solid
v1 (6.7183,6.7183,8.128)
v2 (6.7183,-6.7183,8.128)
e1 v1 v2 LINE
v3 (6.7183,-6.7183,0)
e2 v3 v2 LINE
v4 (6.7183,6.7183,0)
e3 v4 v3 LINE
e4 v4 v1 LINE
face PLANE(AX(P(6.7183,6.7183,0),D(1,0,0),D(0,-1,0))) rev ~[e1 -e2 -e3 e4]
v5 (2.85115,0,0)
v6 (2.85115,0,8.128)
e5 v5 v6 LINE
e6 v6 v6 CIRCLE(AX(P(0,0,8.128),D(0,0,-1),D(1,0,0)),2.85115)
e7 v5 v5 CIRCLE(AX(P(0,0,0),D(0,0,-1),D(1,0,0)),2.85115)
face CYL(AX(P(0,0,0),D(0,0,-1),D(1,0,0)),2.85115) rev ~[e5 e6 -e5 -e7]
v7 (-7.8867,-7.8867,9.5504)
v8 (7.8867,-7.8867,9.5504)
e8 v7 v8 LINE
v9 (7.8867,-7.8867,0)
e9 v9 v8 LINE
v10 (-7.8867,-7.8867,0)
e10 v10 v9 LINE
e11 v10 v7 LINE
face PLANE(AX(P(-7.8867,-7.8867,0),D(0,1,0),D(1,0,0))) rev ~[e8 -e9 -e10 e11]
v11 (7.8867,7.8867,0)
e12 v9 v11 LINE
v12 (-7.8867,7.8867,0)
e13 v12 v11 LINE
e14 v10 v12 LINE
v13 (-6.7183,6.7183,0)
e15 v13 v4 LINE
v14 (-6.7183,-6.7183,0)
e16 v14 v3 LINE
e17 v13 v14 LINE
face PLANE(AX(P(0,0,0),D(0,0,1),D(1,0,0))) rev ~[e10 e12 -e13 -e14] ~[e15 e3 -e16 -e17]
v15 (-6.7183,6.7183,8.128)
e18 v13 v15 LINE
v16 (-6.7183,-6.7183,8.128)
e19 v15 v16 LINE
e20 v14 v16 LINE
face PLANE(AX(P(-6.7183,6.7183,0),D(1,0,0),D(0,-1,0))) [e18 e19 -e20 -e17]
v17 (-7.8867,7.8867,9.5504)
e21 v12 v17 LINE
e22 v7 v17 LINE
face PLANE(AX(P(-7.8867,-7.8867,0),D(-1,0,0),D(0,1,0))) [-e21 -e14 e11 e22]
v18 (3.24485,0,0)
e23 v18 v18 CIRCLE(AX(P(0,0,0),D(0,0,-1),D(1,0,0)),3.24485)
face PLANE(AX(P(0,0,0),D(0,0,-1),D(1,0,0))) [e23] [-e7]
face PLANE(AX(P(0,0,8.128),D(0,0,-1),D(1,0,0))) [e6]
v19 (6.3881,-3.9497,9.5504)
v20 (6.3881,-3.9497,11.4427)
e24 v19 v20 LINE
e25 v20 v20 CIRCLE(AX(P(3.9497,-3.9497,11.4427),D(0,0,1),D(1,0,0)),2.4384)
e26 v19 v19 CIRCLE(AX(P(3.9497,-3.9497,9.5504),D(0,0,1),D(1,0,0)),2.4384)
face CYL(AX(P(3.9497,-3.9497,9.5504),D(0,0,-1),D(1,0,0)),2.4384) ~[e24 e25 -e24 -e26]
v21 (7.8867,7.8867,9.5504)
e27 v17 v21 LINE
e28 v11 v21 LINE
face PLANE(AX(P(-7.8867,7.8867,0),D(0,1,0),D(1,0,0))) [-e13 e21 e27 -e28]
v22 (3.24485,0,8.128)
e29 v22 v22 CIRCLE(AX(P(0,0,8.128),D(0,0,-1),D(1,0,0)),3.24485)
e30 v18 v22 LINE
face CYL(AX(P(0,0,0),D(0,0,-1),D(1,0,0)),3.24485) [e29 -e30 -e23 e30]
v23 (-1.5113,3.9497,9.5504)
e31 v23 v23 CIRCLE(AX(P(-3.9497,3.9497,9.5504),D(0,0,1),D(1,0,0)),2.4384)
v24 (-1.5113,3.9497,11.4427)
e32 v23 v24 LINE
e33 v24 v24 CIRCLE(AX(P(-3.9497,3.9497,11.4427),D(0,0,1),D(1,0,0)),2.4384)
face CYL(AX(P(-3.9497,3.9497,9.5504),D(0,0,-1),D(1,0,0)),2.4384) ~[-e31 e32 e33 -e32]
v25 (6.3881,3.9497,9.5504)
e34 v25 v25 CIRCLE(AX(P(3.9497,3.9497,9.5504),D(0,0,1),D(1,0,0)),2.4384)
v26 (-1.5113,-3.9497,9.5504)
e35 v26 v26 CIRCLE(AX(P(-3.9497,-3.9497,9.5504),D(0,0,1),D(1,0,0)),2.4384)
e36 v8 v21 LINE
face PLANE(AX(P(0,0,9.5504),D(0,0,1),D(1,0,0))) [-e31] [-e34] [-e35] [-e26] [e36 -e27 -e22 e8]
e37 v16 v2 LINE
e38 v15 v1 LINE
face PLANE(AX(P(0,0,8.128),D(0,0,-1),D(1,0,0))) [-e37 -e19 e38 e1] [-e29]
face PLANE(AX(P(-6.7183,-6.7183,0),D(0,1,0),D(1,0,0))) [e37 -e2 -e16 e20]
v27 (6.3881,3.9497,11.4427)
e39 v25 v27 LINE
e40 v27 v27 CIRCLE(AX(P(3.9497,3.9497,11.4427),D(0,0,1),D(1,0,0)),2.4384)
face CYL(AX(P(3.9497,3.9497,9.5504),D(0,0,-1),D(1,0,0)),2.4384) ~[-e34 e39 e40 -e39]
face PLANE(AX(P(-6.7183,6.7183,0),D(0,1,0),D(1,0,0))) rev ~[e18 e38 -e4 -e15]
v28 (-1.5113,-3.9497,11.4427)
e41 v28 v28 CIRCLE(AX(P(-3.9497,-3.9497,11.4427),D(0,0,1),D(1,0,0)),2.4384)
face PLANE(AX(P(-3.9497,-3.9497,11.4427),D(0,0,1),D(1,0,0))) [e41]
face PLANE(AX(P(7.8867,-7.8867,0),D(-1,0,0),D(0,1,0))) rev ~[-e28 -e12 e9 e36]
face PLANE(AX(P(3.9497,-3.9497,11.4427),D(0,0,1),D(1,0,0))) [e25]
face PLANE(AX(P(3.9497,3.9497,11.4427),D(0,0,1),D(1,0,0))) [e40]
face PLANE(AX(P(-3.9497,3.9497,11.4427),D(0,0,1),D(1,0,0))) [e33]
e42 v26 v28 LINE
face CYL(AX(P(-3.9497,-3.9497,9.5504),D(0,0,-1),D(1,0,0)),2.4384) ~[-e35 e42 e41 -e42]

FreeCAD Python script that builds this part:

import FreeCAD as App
import Part
import Sketcher
from FreeCAD import Vector
Q = App.Units.Quantity

doc = App.newDocument("Part")
body = doc.addObject("PartDesign::Body", "Body")

# Sketch on XY plane
sketch1 = body.newObject("Sketcher::SketchObject", "Sketch")
sketch1.AttachmentSupport = (doc.getObject("XY_Plane"), [""])
sketch1.MapMode = "FlatFace"
sketch1.addGeometry(Part.LineSegment(Vector(-8, 8, 0), Vector(-8, -8, 0)), False)
sketch1.addGeometry(Part.LineSegment(Vector(-8, -8, 0), Vector(8, -8, 0)), False)
sketch1.addGeometry(Part.LineSegment(Vector(8, -8, 0), Vector(8, 8, 0)), False)
sketch1.addGeometry(Part.LineSegment(Vector(8, 8, 0), Vector(-8, 8, 0)), False)
sketch1.addConstraint(Sketcher.Constraint("Coincident", 0, 2, 1, 1))
sketch1.addConstraint(Sketcher.Constraint("Coincident", 1, 2, 2, 1))
sketch1.addConstraint(Sketcher.Constraint("Coincident", 2, 2, 3, 1))
sketch1.addConstraint(Sketcher.Constraint("Coincident", 3, 2, 0, 1))
sketch1.addConstraint(Sketcher.Constraint("Vertical", 0))
sketch1.addConstraint(Sketcher.Constraint("Horizontal", 1))
sketch1.addConstraint(Sketcher.Constraint("Vertical", 2))
sketch1.addConstraint(Sketcher.Constraint("Horizontal", 3))
sketch1.addConstraint(Sketcher.Constraint("Symmetric", 0, 2, 2, 2, -1, 1))
sketch1.addConstraint(Sketcher.Constraint("Equal", 3, 0))
sketch1.addConstraint(Sketcher.Constraint("DistanceX", 1, 1, 1, 2, Q("0.621 in")))
pad1 = body.newObject("PartDesign::Pad", "Pad")
pad1.Profile = sketch1
pad1.Length = Q("0.376 in")

# Sketch on XY plane
sketch2 = body.newObject("Sketcher::SketchObject", "Sketch001")
sketch2.AttachmentSupport = (doc.getObject("XY_Plane"), [""])
sketch2.MapMode = "FlatFace"
sketch2.AttachmentOffset = App.Placement(Vector(0, 0, 0.376 * 25.4), App.Rotation())
sketch2.addGeometry(Part.Circle(Vector(3.9, 3.9, 0), Vector(0, 0, 1), 2.4), False)
sketch2.addGeometry(Part.Circle(Vector(-3.9, -3.9, 0), Vector(0, 0, 1), 2.4), False)
sketch2.addGeometry(Part.Circle(Vector(3.9, -3.9, 0), Vector(0, 0, 1), 2.4), False)
sketch2.addGeometry(Part.Circle(Vector(-3.9, 3.9, 0), Vector(0, 0, 1), 2.4), False)
sketch2.addConstraint(Sketcher.Constraint("Equal", 0, 1))
sketch2.addConstraint(Sketcher.Constraint("Equal", 1, 2))
sketch2.addConstraint(Sketcher.Constraint("Equal", 2, 3))
sketch2.addConstraint(Sketcher.Constraint("Symmetric", 0, 3, 1, 3, -1, 1))
sketch2.addConstraint(Sketcher.Constraint("Symmetric", 2, 3, 3, 3, -1, 1))
sketch2.addConstraint(Sketcher.Constraint("Symmetric", 1, 3, 2, 3, -2))
sketch2.addConstraint(Sketcher.Constraint("Diameter", 0, Q("0.192 in")))
sketch2.addConstraint(Sketcher.Constraint("DistanceX", 1, 3, 0, 3, Q("0.311 in")))
sketch2.addConstraint(Sketcher.Constraint("DistanceY", 1, 3, 0, 3, Q("0.311 in")))
pad2 = body.newObject("PartDesign::Pad", "Pad001")
pad2.Profile = sketch2
pad2.Length = Q("0.0745 in")

# Sketch on XY plane
sketch3 = body.newObject("Sketcher::SketchObject", "Sketch002")
sketch3.AttachmentSupport = (doc.getObject("XY_Plane"), [""])
sketch3.MapMode = "FlatFace"
sketch3.addGeometry(Part.LineSegment(Vector(-7, -7, 0), Vector(-7, 7, 0)), False)
sketch3.addGeometry(Part.LineSegment(Vector(-7, 7, 0), Vector(7, 7, 0)), False)
sketch3.addGeometry(Part.LineSegment(Vector(7, 7, 0), Vector(7, -7, 0)), False)
sketch3.addGeometry(Part.LineSegment(Vector(7, -7, 0), Vector(-7, -7, 0)), False)
sketch3.addConstraint(Sketcher.Constraint("Coincident", 0, 2, 1, 1))
sketch3.addConstraint(Sketcher.Constraint("Coincident", 1, 2, 2, 1))
sketch3.addConstraint(Sketcher.Constraint("Coincident", 2, 2, 3, 1))
sketch3.addConstraint(Sketcher.Constraint("Coincident", 3, 2, 0, 1))
sketch3.addConstraint(Sketcher.Constraint("Vertical", 0))
sketch3.addConstraint(Sketcher.Constraint("Horizontal", 1))
sketch3.addConstraint(Sketcher.Constraint("Vertical", 2))
sketch3.addConstraint(Sketcher.Constraint("Horizontal", 3))
sketch3.addConstraint(Sketcher.Constraint("Symmetric", 0, 2, 2, 2, -1, 1))
sketch3.addConstraint(Sketcher.Constraint("Equal", 3, 0))
sketch3.addConstraint(Sketcher.Constraint("DistanceX", 1, 1, 1, 2, Q("0.529 in")))
pocket1 = body.newObject("PartDesign::Pocket", "Pocket")
pocket1.Profile = sketch3
pocket1.Length = Q("0.32 in")
pocket1.Reversed = True

# Sketch on XY plane
sketch4 = body.newObject("Sketcher::SketchObject", "Sketch003")
sketch4.AttachmentSupport = (doc.getObject("XY_Plane"), [""])
sketch4.MapMode = "FlatFace"
sketch4.addGeometry(Part.Circle(Vector(0, 0, 0), Vector(0, 0, 1), 3.2), False)
sketch4.addGeometry(Part.Circle(Vector(0, 0, 0), Vector(0, 0, 1), 2.9), False)
sketch4.addConstraint(Sketcher.Constraint("Coincident", 0, 3, -1, 1))
sketch4.addConstraint(Sketcher.Constraint("Coincident", 1, 3, -1, 1))
sketch4.addConstraint(Sketcher.Constraint("Diameter", 0, Q("0.2555 in")))
sketch4.addConstraint(Sketcher.Constraint("Diameter", 1, Q("0.2245 in")))
pad3 = body.newObject("PartDesign::Pad", "Pad002")
pad3.Profile = sketch4
pad3.Length = Q("0.32 in")

doc.recompute()
